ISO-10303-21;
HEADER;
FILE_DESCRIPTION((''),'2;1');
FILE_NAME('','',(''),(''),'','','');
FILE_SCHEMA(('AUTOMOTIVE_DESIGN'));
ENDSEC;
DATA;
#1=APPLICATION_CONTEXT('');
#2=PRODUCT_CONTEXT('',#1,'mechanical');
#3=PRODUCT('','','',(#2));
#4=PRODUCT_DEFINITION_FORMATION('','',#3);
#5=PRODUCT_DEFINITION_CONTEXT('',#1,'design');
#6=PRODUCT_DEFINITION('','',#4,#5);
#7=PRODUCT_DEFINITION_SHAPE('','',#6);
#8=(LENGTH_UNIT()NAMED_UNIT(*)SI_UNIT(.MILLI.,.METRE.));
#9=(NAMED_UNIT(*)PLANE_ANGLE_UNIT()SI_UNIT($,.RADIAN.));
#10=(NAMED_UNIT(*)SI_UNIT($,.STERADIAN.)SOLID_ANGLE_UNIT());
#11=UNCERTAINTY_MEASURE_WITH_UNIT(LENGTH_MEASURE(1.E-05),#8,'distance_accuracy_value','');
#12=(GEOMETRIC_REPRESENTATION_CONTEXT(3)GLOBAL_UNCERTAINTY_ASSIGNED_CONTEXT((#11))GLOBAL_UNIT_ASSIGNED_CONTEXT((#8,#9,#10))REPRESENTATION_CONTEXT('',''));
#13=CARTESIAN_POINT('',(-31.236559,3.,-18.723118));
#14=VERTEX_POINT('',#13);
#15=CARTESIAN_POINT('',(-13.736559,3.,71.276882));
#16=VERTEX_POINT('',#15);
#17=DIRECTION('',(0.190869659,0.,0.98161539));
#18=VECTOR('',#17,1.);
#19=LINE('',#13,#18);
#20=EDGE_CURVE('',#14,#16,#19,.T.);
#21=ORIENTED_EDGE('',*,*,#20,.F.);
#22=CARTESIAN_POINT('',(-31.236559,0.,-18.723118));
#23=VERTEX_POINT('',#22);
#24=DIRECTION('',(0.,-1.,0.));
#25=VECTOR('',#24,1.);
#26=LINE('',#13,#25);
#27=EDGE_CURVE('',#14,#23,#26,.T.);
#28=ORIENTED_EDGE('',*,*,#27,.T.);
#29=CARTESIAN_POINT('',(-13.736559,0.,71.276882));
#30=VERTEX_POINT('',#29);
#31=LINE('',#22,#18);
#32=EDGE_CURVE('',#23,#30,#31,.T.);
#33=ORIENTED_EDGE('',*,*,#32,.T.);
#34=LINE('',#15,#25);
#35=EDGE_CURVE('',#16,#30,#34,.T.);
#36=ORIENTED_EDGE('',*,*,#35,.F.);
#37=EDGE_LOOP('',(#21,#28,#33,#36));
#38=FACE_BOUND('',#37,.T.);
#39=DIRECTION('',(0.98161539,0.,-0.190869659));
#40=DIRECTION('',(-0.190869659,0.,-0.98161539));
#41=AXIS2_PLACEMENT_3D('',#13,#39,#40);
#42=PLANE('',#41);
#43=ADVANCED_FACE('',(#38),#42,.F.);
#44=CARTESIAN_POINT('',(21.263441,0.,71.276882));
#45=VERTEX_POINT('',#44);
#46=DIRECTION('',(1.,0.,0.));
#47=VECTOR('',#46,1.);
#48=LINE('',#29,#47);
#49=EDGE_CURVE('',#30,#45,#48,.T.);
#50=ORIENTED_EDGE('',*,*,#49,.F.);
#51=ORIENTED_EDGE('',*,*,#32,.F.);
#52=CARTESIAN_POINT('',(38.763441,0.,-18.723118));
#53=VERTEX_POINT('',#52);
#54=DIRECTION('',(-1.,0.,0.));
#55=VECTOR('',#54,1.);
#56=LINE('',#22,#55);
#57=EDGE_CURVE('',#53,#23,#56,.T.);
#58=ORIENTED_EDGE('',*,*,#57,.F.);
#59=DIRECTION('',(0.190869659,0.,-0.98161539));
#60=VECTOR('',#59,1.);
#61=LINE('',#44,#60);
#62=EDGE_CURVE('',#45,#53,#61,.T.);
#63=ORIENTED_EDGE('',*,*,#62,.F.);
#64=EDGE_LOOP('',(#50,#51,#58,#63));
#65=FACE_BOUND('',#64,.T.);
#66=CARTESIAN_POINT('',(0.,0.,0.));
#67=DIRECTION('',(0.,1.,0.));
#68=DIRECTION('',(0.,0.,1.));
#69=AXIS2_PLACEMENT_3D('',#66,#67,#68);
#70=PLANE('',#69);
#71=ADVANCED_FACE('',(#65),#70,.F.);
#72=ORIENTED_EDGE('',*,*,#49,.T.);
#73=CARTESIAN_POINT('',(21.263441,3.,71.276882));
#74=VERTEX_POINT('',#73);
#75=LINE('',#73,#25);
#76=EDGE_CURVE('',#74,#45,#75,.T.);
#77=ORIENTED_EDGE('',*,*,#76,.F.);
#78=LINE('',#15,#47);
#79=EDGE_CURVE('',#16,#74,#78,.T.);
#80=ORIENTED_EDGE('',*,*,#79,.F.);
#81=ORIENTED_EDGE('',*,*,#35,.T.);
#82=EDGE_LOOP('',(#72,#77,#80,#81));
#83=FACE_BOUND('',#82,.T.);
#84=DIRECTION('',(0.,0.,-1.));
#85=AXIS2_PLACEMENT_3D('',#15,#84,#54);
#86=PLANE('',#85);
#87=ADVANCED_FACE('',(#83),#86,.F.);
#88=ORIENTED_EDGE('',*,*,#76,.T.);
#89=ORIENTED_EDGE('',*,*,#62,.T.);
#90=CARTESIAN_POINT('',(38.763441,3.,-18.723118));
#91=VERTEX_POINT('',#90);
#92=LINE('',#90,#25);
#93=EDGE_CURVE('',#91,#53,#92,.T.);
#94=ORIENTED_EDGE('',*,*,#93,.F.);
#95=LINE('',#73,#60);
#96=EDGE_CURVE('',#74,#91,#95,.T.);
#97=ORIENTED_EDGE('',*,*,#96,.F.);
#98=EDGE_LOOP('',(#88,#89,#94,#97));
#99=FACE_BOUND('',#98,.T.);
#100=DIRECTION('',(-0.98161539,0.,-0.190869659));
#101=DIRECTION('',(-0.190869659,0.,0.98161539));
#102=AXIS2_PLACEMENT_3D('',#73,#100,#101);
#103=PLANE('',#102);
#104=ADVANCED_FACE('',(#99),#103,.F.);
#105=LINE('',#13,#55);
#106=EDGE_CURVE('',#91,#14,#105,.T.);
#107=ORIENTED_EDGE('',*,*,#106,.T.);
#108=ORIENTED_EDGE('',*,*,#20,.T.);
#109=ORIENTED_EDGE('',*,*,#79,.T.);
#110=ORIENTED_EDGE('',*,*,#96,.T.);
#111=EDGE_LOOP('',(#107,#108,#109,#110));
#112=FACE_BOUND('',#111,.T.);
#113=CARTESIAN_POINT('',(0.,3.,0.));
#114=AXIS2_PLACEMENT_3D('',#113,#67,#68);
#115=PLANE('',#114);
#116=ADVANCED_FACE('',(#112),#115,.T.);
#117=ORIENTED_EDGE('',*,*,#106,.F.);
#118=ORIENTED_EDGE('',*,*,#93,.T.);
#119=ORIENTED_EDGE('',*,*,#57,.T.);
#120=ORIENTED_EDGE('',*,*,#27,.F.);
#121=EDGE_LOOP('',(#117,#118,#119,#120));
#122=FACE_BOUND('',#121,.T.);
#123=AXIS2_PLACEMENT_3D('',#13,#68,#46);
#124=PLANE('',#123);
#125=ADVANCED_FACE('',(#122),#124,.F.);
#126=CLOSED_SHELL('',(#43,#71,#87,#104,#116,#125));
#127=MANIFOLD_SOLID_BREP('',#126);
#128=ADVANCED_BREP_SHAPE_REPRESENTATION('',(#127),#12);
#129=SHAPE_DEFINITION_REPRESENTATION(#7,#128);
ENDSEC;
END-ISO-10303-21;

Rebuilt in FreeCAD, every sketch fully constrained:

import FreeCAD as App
import Part
import Sketcher
from FreeCAD import Vector
Q = App.Units.Quantity


def add_polygon(sketch, points):
    """Adds a closed chain of lines whose ends are joined by coincident constraints."""
    first, n = sketch.GeometryCount, len(points)
    for a, b in zip(points, points[1:] + points[:1]):
        sketch.addGeometry(Part.LineSegment(App.Vector(*a, 0), App.Vector(*b, 0)), False)
    for i in range(n):
        sketch.addConstraint(Sketcher.Constraint("Coincident", first + i, 2, first + (i + 1) % n, 1))

doc = App.newDocument("Part")
body = doc.addObject("PartDesign::Body", "Body")

sketch1 = body.newObject("Sketcher::SketchObject", "Sketch")
sketch1.AttachmentSupport = (doc.getObject("XZ_Plane"), [""])
sketch1.MapMode = "FlatFace"
add_polygon(sketch1, [(39, -19), (-31, -19), (-14, 71), (21, 71)])
sketch1.addConstraint(Sketcher.Constraint("Horizontal", 0))
sketch1.addConstraint(Sketcher.Constraint("Horizontal", 2))
sketch1.addConstraint(Sketcher.Constraint("Equal", 1, 3))
sketch1.addConstraint(Sketcher.Constraint("DistanceX", 0, 2, 0, 1, Q("70 mm")))
sketch1.addConstraint(Sketcher.Constraint("DistanceX", 2, 1, 2, 2, Q("35 mm")))
sketch1.addConstraint(Sketcher.Constraint("DistanceY", 0, 2, 1, 2, Q("90 mm")))
sketch1.addConstraint(Sketcher.Constraint("DistanceX", 0, 2, -1, 1, Q("31.236559 mm")))
sketch1.addConstraint(Sketcher.Constraint("DistanceY", 0, 2, -1, 1, Q("18.723118 mm")))
pad1 = body.newObject("PartDesign::Pad", "Pad")
pad1.Profile = sketch1
pad1.Length = 3
pad1.Reversed = True

doc.recompute()
